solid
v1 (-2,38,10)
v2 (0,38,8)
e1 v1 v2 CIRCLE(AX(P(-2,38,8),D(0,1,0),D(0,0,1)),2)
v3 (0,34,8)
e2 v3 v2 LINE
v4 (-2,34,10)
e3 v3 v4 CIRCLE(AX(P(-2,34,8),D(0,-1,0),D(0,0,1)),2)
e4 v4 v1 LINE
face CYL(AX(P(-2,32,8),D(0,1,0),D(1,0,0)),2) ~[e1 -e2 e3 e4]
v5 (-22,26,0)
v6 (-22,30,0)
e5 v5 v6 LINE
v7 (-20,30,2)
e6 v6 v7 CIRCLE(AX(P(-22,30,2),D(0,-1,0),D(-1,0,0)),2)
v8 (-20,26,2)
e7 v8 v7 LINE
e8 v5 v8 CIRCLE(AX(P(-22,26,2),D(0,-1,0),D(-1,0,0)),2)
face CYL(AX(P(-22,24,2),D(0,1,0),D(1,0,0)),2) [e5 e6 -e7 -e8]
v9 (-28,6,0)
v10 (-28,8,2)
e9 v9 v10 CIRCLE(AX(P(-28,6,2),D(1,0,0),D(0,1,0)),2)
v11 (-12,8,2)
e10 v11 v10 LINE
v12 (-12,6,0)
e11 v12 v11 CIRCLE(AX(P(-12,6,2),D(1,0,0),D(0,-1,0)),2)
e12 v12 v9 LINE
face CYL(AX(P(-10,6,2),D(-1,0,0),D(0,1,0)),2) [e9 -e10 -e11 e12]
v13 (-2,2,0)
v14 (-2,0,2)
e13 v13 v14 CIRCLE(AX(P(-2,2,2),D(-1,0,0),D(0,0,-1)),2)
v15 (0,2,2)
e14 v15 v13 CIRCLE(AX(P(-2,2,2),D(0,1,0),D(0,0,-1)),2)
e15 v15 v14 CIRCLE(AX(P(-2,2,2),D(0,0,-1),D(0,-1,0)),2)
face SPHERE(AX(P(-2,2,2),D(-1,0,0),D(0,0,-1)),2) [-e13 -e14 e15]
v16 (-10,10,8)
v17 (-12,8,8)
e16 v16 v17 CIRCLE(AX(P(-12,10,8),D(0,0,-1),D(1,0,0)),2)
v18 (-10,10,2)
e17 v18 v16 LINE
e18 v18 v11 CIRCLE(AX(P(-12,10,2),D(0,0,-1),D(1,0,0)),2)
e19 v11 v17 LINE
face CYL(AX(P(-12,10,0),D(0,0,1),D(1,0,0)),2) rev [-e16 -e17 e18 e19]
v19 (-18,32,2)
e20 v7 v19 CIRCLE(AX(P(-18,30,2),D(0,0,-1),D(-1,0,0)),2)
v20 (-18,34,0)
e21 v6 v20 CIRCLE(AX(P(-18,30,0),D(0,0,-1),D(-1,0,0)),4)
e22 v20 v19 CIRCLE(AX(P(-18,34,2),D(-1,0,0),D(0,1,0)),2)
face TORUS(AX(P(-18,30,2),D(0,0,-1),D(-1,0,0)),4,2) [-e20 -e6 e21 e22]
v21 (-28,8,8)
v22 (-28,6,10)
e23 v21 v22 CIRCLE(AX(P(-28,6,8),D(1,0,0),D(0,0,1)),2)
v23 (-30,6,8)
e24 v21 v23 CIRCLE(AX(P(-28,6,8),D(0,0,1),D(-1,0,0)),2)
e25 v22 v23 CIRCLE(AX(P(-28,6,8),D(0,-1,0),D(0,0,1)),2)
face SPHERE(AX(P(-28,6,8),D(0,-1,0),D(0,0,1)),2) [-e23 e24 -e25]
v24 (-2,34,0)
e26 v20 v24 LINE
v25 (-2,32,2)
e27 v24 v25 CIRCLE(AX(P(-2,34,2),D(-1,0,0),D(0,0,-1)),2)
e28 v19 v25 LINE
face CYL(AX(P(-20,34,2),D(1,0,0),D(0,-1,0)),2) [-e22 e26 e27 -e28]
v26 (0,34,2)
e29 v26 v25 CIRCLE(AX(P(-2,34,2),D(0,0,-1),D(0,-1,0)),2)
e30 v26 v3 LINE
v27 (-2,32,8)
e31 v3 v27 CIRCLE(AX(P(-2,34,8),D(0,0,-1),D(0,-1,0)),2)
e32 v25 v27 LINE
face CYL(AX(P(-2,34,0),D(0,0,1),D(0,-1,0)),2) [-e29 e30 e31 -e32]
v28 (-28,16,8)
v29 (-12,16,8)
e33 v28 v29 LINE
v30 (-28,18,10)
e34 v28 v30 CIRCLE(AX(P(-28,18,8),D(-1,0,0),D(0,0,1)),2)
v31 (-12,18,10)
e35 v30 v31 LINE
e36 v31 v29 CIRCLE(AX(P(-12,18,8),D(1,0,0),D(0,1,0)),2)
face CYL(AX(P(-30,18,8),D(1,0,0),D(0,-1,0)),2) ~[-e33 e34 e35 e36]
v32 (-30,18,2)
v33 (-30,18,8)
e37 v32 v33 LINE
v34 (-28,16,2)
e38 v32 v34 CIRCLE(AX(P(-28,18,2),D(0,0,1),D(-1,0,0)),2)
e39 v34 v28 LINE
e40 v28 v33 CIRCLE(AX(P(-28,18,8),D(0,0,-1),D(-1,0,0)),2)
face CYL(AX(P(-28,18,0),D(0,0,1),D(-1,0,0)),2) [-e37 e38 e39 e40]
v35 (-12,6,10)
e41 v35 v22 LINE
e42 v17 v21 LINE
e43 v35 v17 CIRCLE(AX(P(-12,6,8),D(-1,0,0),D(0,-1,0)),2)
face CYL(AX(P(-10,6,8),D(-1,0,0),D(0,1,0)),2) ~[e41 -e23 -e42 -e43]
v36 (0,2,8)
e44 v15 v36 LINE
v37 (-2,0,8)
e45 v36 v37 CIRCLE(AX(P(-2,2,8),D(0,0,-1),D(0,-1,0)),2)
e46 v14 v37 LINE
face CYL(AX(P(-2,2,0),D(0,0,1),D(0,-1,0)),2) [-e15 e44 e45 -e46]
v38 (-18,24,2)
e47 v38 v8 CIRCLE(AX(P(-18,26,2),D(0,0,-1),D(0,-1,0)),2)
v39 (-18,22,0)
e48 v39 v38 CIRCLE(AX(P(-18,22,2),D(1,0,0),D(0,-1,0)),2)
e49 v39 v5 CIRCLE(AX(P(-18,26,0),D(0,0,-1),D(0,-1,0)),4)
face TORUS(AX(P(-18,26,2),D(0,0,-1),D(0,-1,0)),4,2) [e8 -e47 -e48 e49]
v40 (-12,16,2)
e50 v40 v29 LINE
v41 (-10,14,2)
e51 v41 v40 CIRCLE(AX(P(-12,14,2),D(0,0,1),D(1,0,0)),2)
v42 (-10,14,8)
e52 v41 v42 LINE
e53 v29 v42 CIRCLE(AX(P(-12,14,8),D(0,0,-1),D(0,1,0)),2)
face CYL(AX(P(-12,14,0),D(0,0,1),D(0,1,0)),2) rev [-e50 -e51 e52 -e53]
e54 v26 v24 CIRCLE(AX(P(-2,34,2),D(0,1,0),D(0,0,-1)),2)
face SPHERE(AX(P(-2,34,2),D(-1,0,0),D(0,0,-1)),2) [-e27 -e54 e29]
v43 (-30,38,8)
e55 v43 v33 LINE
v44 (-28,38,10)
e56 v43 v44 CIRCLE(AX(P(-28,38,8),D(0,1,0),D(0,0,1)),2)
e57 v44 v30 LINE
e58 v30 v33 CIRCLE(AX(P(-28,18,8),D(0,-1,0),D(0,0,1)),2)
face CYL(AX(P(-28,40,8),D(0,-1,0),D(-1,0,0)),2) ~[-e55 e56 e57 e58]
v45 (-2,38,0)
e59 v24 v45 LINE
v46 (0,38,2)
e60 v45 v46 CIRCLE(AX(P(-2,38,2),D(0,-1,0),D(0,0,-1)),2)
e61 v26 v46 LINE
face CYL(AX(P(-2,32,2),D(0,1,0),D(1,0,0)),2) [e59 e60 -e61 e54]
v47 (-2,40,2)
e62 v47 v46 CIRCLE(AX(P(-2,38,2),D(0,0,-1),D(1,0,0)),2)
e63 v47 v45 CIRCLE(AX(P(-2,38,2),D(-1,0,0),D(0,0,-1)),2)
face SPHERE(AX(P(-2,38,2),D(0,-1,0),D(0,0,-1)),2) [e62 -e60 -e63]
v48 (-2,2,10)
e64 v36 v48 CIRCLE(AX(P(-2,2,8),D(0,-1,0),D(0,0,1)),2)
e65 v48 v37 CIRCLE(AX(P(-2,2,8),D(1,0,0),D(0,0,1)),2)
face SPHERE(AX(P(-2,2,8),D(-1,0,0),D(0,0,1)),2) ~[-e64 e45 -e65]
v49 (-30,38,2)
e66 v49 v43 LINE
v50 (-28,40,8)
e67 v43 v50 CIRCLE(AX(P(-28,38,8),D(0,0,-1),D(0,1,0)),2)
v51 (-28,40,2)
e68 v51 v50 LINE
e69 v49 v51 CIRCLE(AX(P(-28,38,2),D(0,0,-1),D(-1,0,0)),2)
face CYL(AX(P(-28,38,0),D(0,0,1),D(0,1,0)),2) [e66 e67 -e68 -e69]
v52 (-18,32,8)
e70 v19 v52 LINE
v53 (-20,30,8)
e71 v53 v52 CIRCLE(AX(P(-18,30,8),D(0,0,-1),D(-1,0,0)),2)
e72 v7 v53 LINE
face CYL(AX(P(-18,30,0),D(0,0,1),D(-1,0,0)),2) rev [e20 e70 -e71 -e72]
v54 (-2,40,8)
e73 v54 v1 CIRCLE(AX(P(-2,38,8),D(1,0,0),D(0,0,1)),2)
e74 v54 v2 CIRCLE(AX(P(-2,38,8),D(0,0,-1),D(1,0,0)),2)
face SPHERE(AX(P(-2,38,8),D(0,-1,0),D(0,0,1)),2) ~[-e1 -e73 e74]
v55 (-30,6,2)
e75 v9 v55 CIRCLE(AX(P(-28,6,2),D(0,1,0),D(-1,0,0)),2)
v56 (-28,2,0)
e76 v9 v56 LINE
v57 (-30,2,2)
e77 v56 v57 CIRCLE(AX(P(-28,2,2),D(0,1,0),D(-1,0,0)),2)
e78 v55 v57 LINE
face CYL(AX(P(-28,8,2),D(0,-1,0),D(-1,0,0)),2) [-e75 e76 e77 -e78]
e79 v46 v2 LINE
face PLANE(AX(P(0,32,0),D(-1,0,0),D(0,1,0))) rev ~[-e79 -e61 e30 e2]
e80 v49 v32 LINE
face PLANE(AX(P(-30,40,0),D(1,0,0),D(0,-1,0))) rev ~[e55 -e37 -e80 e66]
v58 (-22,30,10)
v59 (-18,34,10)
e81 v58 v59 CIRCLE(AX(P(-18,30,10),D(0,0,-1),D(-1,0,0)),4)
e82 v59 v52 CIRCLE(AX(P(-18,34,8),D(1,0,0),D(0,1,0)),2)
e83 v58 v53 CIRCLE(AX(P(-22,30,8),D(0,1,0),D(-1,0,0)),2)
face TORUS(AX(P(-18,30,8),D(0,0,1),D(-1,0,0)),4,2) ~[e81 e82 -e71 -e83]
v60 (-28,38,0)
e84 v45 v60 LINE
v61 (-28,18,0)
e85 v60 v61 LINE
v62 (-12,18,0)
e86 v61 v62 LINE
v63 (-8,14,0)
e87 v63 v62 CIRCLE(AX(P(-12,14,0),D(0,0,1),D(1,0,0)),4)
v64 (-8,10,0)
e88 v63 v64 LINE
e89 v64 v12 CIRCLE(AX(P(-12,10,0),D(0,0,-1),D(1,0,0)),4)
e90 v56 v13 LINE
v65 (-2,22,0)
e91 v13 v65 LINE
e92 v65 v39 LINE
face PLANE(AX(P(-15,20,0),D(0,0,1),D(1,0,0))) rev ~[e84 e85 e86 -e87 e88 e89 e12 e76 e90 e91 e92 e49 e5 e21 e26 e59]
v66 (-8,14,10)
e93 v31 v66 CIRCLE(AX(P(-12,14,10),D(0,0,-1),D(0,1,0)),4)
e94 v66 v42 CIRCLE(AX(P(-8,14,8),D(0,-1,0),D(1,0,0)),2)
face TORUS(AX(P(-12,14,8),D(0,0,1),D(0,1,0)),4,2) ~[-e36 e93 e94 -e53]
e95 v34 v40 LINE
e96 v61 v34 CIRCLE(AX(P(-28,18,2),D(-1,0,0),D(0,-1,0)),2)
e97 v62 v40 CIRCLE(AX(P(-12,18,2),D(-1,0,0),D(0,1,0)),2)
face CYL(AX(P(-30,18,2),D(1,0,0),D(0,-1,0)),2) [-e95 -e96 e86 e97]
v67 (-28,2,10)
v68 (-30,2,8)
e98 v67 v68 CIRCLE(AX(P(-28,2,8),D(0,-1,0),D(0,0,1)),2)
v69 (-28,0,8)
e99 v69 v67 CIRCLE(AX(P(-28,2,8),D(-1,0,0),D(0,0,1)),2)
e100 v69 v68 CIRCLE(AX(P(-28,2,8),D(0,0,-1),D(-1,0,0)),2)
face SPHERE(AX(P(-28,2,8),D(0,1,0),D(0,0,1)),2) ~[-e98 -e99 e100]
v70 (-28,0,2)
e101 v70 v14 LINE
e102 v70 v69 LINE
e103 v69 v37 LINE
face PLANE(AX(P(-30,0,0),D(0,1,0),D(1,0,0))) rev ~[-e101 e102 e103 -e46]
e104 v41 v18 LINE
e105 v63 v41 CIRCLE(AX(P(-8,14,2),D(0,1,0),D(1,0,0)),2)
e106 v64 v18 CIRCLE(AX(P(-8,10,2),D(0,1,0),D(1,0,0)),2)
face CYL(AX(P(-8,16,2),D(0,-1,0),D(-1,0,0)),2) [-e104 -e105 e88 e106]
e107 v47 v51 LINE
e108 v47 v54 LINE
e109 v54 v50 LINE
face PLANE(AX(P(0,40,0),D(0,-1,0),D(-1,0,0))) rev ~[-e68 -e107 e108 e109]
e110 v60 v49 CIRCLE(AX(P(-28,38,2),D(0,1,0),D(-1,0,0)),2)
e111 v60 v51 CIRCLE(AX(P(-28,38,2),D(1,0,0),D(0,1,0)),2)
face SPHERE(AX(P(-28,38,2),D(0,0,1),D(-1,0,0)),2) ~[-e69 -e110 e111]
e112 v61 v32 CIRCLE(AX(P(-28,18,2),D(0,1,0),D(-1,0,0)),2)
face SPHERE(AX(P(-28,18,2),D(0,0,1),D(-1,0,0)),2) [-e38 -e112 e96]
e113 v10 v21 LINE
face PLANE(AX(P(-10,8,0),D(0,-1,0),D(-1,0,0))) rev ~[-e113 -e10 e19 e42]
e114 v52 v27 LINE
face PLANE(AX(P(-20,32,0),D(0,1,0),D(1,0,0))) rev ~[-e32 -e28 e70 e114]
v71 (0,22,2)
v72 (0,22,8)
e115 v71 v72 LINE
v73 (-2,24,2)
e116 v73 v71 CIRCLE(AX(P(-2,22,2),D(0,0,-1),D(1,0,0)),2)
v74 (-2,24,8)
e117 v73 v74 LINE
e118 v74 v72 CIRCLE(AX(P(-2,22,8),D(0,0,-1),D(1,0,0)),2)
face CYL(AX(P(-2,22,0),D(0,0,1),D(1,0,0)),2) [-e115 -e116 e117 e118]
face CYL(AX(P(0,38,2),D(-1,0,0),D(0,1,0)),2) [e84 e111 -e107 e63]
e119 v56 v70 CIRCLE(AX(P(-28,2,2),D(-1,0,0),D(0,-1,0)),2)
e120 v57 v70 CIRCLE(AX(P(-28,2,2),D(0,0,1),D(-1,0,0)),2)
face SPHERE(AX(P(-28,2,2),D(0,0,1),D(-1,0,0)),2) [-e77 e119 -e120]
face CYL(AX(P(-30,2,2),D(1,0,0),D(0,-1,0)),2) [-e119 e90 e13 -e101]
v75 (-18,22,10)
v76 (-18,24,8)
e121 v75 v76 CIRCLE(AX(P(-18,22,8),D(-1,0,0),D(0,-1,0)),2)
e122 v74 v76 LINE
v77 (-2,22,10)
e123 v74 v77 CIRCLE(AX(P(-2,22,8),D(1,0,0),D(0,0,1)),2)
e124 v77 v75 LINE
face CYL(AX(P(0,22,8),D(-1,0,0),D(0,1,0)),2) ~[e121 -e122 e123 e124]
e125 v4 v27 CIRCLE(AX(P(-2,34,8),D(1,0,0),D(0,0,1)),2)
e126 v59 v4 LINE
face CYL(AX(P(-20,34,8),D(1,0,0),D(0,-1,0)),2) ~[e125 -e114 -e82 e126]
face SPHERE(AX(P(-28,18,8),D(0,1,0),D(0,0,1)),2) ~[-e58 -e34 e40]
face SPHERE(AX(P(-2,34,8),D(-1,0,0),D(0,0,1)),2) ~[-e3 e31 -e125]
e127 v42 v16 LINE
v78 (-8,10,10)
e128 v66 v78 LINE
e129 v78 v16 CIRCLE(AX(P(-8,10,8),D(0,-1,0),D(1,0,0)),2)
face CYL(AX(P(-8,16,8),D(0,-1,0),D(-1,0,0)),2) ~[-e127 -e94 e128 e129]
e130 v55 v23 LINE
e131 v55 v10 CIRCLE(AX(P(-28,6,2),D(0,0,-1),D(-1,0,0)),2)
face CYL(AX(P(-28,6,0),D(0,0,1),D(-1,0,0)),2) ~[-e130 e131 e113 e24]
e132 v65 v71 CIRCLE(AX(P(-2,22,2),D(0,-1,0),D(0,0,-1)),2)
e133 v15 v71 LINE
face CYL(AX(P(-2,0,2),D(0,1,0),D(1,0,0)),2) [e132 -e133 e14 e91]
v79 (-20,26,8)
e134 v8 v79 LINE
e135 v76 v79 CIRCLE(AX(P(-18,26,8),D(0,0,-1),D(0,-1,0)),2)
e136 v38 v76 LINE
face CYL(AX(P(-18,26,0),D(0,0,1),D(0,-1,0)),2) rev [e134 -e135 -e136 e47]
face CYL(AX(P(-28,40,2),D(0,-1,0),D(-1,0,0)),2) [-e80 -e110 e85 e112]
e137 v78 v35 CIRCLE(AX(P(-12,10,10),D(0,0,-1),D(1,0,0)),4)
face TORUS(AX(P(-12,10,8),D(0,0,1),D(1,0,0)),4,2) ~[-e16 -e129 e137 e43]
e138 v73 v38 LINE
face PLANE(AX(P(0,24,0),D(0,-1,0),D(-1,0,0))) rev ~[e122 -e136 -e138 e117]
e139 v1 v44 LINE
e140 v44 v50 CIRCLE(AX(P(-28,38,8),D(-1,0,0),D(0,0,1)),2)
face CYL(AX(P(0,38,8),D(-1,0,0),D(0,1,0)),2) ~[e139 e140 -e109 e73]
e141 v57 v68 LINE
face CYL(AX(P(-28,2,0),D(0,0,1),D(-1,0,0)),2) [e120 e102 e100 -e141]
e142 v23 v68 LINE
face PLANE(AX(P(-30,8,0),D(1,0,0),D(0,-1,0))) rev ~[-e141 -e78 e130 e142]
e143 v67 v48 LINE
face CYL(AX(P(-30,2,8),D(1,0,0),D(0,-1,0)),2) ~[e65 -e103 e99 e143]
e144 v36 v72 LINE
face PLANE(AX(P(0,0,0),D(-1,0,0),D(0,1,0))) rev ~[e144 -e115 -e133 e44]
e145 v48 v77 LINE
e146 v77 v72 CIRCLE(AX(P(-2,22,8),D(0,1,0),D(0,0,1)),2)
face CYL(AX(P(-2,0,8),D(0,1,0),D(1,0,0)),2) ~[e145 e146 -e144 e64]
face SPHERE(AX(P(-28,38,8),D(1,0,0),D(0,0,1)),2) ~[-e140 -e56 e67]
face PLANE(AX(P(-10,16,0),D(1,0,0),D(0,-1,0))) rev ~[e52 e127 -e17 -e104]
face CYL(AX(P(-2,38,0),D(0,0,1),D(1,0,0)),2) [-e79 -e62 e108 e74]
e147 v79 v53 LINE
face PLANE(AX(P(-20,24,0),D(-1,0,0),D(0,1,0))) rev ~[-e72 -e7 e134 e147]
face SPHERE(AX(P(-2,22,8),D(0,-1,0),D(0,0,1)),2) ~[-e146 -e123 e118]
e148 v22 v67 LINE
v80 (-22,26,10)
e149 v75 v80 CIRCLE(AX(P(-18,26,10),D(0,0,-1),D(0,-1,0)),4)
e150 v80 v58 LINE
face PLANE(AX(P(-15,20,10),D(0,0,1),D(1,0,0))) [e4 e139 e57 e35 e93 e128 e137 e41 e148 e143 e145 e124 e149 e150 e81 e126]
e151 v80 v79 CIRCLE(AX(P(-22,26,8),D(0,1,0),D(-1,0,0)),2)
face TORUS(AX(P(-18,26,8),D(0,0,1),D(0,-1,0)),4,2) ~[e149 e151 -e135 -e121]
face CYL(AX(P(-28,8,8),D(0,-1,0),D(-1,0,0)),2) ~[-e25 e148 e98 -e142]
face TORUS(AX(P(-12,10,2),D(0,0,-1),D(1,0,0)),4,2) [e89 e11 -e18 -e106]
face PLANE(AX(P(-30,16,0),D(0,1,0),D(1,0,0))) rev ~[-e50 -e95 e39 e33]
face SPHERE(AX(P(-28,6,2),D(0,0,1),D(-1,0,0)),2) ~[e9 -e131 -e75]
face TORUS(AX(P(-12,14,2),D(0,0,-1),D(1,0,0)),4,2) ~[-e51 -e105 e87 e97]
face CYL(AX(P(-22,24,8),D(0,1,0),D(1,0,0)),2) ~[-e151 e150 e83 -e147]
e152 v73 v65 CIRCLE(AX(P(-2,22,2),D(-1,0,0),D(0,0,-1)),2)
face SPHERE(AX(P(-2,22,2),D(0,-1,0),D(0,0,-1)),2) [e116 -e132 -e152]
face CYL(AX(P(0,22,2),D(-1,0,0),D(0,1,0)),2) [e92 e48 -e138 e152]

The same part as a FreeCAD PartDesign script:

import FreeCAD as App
import Part
import Sketcher


def add_polygon(sketch, points):
    """Adds a closed chain of lines whose ends are joined by coincident constraints."""
    first, n = sketch.GeometryCount, len(points)
    for a, b in zip(points, points[1:] + points[:1]):
        sketch.addGeometry(Part.LineSegment(App.Vector(*a, 0), App.Vector(*b, 0)), False)
    for i in range(n):
        sketch.addConstraint(Sketcher.Constraint("Coincident", first + i, 2, first + (i + 1) % n, 1))

doc = App.newDocument("Part")
body = doc.addObject("PartDesign::Body", "Body")

sketch1 = doc.addObject("Sketcher::SketchObject", "Sketch")
body.addObject(sketch1)
sketch1.AttachmentSupport = (doc.XY_Plane, [""])
sketch1.MapMode = "FlatFace"
add_polygon(sketch1, [(-30, 8), (-30, 0), (0, 0), (0, 24), (-20, 24), (-20, 32), (0, 32), (0, 40), (-30, 40), (-30, 16), (-10, 16), (-10, 8)])
sketch1.addConstraint([
    Sketcher.Constraint("Vertical", 0),
    Sketcher.Constraint("Horizontal", 1),
    Sketcher.Constraint("Vertical", 2),
    Sketcher.Constraint("Horizontal", 3),
    Sketcher.Constraint("Vertical", 4),
    Sketcher.Constraint("Horizontal", 5),
    Sketcher.Constraint("Vertical", 6),
    Sketcher.Constraint("Horizontal", 7),
    Sketcher.Constraint("Vertical", 8),
    Sketcher.Constraint("Horizontal", 9),
    Sketcher.Constraint("Vertical", 10),
    Sketcher.Constraint("Horizontal", 11),
    Sketcher.Constraint("Coincident", 1, 2, -1, 1),
    Sketcher.Constraint("PointOnObject", 5, 2, -2),
    Sketcher.Constraint("Vertical", 0, 2, 7, 2),
    Sketcher.Constraint("Equal", 5, 9),
    Sketcher.Constraint("Equal", 0, 4),
    Sketcher.Constraint("Equal", 4, 6),
    Sketcher.Constraint("Equal", 2, 8),
    Sketcher.Constraint("DistanceX", 1, 1, 1, 2, 30.0),
    Sketcher.Constraint("DistanceX", 3, 2, 3, 1, 20.0),
    Sketcher.Constraint("DistanceY", 0, 2, 0, 1, 8.0),
    Sketcher.Constraint("DistanceY", 2, 1, 2, 2, 24.0),
])
pad1 = doc.addObject("PartDesign::Pad", "Pad")
body.addObject(pad1)
pad1.Profile = sketch1
pad1.Length = 10
doc.recompute()

fillet = doc.addObject("PartDesign::Fillet", "Fillet")
body.addObject(fillet)
fillet.Base = (pad1, ["Edge1"])
fillet.UseAllEdges = True
fillet.Radius = 2

doc.recompute()
